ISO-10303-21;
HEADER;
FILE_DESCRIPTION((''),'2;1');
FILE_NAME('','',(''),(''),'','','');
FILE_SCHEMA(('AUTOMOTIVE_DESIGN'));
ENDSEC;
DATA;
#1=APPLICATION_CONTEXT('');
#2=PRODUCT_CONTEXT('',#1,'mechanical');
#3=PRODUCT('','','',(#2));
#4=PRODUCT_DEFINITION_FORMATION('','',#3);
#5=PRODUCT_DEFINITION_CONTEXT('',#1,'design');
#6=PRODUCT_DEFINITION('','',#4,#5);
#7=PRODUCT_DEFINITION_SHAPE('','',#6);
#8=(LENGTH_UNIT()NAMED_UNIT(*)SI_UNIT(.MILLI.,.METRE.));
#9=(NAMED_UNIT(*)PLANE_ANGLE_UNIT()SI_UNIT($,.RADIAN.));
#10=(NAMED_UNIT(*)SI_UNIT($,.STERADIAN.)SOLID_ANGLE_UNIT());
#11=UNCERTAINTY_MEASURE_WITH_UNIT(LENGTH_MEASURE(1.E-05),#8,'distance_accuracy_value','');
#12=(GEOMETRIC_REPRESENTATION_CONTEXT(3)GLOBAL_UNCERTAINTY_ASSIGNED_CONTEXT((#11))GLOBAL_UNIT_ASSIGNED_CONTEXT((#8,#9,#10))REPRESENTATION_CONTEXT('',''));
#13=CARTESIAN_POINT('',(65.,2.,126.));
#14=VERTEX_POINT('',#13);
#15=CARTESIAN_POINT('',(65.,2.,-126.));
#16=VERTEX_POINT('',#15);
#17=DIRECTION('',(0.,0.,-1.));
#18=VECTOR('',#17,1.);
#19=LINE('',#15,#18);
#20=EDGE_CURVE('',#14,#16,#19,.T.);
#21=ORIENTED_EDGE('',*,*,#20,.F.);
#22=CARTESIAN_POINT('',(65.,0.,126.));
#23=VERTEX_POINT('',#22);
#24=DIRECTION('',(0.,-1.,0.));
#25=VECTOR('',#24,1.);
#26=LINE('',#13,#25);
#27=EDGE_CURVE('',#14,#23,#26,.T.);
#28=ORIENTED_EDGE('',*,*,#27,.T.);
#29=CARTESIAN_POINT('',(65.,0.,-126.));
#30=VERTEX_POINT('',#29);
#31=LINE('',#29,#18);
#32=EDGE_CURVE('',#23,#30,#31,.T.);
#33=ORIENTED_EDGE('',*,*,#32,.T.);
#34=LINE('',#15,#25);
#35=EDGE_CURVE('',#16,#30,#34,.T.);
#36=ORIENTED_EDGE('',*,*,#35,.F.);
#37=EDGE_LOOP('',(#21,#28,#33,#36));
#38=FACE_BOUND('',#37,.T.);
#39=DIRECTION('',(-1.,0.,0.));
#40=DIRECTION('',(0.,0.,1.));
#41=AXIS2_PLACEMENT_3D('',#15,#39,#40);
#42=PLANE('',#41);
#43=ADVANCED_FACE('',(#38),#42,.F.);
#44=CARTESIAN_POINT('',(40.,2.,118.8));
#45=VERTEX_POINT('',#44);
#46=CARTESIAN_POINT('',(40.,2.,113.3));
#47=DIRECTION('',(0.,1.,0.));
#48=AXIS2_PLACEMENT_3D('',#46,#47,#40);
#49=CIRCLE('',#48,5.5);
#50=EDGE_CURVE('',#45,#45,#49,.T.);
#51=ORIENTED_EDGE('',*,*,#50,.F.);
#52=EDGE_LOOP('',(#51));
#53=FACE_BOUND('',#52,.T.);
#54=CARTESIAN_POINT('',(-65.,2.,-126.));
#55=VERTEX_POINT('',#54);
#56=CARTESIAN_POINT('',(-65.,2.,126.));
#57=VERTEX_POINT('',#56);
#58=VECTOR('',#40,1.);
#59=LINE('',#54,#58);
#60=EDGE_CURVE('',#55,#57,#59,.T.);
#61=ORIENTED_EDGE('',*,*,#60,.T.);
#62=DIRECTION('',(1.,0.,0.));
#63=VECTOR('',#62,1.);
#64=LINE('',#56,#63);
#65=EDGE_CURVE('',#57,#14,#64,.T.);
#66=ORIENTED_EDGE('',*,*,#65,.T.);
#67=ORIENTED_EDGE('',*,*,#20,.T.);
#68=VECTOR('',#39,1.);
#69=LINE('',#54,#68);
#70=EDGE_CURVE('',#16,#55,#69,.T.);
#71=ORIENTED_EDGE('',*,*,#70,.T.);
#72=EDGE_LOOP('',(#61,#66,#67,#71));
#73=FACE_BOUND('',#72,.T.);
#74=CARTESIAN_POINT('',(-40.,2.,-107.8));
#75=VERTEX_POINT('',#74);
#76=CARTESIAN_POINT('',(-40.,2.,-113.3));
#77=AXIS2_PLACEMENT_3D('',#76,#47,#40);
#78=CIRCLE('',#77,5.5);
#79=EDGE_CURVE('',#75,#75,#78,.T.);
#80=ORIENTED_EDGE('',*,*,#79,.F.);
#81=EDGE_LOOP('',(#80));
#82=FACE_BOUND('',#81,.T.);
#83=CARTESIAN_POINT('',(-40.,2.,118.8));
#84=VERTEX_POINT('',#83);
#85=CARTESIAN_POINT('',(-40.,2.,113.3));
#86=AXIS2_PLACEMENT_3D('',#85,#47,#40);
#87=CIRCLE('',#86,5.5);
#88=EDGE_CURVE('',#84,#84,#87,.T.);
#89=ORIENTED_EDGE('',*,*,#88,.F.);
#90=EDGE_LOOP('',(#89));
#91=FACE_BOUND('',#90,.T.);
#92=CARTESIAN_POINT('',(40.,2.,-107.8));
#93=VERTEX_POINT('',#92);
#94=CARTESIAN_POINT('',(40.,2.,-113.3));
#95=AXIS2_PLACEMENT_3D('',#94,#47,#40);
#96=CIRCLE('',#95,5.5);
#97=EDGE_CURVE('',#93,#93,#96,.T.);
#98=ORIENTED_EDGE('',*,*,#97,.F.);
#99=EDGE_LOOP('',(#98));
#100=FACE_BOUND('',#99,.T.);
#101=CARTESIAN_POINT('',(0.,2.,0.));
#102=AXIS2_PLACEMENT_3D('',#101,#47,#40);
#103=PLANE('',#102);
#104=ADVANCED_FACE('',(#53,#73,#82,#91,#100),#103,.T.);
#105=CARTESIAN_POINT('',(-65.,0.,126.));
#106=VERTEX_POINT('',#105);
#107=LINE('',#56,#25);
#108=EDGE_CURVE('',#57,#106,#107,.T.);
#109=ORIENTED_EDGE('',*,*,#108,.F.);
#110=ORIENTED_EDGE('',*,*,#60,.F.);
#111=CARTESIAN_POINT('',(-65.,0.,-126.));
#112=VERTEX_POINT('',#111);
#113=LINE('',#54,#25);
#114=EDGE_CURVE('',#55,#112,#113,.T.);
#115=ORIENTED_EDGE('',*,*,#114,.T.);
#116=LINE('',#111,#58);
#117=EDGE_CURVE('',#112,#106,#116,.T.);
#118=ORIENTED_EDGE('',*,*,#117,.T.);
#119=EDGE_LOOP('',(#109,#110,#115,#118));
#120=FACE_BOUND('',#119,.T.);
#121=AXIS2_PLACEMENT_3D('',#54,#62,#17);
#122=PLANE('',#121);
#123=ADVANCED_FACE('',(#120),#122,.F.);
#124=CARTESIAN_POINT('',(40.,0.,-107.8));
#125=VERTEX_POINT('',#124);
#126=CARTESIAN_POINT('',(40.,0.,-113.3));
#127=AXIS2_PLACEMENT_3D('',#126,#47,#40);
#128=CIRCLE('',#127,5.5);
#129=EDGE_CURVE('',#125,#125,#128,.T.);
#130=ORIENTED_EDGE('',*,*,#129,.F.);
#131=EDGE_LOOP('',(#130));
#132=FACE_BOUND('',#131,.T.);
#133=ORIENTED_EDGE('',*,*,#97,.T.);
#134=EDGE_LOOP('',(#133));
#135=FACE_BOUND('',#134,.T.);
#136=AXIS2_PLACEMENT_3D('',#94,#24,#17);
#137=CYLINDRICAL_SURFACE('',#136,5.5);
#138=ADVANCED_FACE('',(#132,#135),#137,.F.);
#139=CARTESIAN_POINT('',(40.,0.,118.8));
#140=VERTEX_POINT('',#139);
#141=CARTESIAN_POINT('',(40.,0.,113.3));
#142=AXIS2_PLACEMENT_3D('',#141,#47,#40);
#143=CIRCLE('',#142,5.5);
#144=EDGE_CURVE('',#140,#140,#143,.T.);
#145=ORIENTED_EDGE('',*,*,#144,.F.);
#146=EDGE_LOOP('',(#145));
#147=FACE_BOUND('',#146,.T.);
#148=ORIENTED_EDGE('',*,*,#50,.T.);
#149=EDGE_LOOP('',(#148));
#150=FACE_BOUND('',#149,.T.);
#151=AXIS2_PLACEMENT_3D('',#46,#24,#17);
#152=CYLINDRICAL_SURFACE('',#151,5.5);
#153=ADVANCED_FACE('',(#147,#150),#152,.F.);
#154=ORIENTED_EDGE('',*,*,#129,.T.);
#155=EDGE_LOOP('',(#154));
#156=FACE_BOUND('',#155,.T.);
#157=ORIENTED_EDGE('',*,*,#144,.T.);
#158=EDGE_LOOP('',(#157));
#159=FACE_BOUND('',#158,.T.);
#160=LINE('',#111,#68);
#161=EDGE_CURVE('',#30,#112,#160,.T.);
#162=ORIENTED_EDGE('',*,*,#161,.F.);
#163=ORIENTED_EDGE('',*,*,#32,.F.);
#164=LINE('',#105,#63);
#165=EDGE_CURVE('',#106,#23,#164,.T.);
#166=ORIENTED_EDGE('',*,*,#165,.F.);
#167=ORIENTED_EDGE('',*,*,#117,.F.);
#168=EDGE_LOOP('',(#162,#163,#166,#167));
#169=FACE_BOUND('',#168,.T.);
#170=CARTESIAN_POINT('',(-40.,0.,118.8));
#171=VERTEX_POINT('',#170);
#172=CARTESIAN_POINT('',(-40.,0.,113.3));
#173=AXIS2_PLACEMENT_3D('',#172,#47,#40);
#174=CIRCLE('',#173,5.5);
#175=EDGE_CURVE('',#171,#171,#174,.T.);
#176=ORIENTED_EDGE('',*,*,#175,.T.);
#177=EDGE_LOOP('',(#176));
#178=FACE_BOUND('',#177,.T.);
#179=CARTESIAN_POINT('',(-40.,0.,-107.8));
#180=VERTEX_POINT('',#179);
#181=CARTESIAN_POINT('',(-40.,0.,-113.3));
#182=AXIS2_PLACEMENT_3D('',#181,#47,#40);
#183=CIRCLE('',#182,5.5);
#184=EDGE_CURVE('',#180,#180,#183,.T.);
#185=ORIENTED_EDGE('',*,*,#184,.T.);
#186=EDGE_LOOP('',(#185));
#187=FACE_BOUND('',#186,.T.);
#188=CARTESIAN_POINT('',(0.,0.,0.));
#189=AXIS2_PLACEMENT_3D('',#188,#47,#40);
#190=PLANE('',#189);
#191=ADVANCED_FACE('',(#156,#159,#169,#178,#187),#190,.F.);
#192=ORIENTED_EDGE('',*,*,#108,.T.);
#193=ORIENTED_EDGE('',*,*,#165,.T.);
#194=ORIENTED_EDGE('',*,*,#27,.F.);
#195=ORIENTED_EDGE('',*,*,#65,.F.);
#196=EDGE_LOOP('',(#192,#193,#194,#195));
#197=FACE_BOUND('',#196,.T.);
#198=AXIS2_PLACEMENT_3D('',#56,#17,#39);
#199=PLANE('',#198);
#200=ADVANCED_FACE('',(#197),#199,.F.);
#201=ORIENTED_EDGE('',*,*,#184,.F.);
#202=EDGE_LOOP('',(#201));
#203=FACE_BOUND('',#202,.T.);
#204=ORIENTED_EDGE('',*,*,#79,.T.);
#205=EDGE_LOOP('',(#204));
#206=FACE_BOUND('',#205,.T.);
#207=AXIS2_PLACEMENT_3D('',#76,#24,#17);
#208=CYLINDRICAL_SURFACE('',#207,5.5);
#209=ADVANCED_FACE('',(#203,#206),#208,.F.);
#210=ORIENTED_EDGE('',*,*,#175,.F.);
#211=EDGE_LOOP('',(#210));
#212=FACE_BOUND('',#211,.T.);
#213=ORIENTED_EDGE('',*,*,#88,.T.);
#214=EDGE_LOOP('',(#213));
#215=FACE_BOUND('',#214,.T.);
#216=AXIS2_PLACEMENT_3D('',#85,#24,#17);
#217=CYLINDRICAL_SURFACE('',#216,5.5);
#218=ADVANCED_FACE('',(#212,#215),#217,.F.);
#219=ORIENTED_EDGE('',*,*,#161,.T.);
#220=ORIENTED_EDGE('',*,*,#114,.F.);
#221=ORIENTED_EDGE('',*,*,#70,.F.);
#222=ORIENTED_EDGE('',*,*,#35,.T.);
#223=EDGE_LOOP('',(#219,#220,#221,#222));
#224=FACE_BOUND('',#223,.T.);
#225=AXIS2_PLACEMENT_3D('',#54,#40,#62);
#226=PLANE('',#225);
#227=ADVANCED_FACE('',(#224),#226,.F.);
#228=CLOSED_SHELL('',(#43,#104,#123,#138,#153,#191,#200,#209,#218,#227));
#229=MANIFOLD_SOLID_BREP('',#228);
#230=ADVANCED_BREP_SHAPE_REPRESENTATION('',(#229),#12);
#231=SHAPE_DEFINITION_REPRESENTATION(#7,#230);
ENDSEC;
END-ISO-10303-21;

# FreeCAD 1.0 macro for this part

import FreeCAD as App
import Part
import Sketcher

V = App.Vector
Q = App.Units.Quantity


def add_polygon(sketch, points):
    """Adds a closed chain of lines whose ends are joined by coincident constraints."""
    first, n = sketch.GeometryCount, len(points)
    for a, b in zip(points, points[1:] + points[:1]):
        sketch.addGeometry(Part.LineSegment(App.Vector(*a, 0), App.Vector(*b, 0)), False)
    for i in range(n):
        sketch.addConstraint(Sketcher.Constraint("Coincident", first + i, 2, first + (i + 1) % n, 1))

doc = App.newDocument("Part")
params = doc.addObject("Spreadsheet::Sheet", "Params")
for row, (alias, value) in enumerate([
    ("sketch1_diameter", "11 mm"),
    ("sketch1_width", "130 mm"),
    ("sketch1_height", "252 mm"),
    ("pad1_length", "2 mm"),
], start=1):
    params.set(f"A{row}", alias)
    params.set(f"B{row}", "=" + value)
    params.setAlias(f"B{row}", alias)

body = doc.addObject("PartDesign::Body", "Body")

sketch1 = doc.addObject("Sketcher::SketchObject", "Sketch")
body.addObject(sketch1)
sketch1.AttachmentSupport = (doc.XZ_Plane, [""])
sketch1.MapMode = "FlatFace"
add_polygon(sketch1, [(-65, -126), (-65, 126), (65, 126), (65, -126)])
sketch1.addGeometry(Part.Circle(V(-40, 113, 0), V(0, 0, 1), 6), False)
sketch1.addGeometry(Part.Circle(V(40, 113, 0), V(0, 0, 1), 6), False)
sketch1.addGeometry(Part.Circle(V(-40, -113, 0), V(0, 0, 1), 6), False)
sketch1.addGeometry(Part.Circle(V(40, -113, 0), V(0, 0, 1), 6), False)
sketch1.addConstraint([
    Sketcher.Constraint("Vertical", 0),
    Sketcher.Constraint("Horizontal", 1),
    Sketcher.Constraint("Vertical", 2),
    Sketcher.Constraint("Horizontal", 3),
    Sketcher.Constraint("Equal", 4, 5),
    Sketcher.Constraint("Equal", 5, 6),
    Sketcher.Constraint("Equal", 6, 7),
    Sketcher.Constraint("Symmetric", 5, 3, 6, 3, -1, 1),
    Sketcher.Constraint("Symmetric", 4, 3, 7, 3, -1, 1),
    Sketcher.Constraint("Symmetric", 0, 2, 2, 2, -1, 1),
    Sketcher.Constraint("Symmetric", 4, 3, 5, 3, -2),
    Sketcher.Constraint("Diameter", 4, Q("11 mm")),
    Sketcher.Constraint("DistanceX", 1, 1, 1, 2, Q("130 mm")),
    Sketcher.Constraint("DistanceY", 0, 1, 0, 2, Q("252 mm")),
    Sketcher.Constraint("DistanceX", 4, 3, -1, 1, Q("40 mm")),
    Sketcher.Constraint("DistanceY", -1, 1, 4, 3, Q("113.3 mm")),
])
sketch1.setExpression("Constraints[15]", "Params.sketch1_diameter")
sketch1.setExpression("Constraints[16]", "Params.sketch1_width")
sketch1.setExpression("Constraints[17]", "Params.sketch1_height")
pad1 = doc.addObject("PartDesign::Pad", "Pad")
body.addObject(pad1)
pad1.Profile = sketch1
pad1.setExpression("Length", "Params.pad1_length")
pad1.Reversed = True

doc.recompute()
